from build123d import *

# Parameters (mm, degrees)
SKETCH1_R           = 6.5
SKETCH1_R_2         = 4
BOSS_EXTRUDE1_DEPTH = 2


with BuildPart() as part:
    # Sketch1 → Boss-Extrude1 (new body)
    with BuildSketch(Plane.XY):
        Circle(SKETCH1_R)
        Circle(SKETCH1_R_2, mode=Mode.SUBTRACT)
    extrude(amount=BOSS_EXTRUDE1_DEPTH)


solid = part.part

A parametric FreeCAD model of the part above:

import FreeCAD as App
import Part
import Sketcher

doc = App.newDocument("Part")
body = doc.addObject("PartDesign::Body", "Body")

# Sketch on XY plane
sketch1 = body.newObject("Sketcher::SketchObject", "Sketch")
sketch1.AttachmentSupport = (doc.getObject("XY_Plane"), [""])
sketch1.MapMode = "FlatFace"
sketch1.addGeometry([
    Part.Circle(App.Vector(0, 0, 0), App.Vector(0, 0, 1), 6.5),
    Part.Circle(App.Vector(0, 0, 0), App.Vector(0, 0, 1), 4),
], False)
sketch1.addConstraint([
    Sketcher.Constraint("Coincident", 0, 3, -1, 1),
    Sketcher.Constraint("Coincident", 1, 3, -1, 1),
    Sketcher.Constraint("Diameter", 0, 13.0),
    Sketcher.Constraint("Diameter", 1, 8.0),
])
pad1 = body.newObject("PartDesign::Pad", "Pad")
pad1.Profile = sketch1
pad1.Length = 2

doc.recompute()
